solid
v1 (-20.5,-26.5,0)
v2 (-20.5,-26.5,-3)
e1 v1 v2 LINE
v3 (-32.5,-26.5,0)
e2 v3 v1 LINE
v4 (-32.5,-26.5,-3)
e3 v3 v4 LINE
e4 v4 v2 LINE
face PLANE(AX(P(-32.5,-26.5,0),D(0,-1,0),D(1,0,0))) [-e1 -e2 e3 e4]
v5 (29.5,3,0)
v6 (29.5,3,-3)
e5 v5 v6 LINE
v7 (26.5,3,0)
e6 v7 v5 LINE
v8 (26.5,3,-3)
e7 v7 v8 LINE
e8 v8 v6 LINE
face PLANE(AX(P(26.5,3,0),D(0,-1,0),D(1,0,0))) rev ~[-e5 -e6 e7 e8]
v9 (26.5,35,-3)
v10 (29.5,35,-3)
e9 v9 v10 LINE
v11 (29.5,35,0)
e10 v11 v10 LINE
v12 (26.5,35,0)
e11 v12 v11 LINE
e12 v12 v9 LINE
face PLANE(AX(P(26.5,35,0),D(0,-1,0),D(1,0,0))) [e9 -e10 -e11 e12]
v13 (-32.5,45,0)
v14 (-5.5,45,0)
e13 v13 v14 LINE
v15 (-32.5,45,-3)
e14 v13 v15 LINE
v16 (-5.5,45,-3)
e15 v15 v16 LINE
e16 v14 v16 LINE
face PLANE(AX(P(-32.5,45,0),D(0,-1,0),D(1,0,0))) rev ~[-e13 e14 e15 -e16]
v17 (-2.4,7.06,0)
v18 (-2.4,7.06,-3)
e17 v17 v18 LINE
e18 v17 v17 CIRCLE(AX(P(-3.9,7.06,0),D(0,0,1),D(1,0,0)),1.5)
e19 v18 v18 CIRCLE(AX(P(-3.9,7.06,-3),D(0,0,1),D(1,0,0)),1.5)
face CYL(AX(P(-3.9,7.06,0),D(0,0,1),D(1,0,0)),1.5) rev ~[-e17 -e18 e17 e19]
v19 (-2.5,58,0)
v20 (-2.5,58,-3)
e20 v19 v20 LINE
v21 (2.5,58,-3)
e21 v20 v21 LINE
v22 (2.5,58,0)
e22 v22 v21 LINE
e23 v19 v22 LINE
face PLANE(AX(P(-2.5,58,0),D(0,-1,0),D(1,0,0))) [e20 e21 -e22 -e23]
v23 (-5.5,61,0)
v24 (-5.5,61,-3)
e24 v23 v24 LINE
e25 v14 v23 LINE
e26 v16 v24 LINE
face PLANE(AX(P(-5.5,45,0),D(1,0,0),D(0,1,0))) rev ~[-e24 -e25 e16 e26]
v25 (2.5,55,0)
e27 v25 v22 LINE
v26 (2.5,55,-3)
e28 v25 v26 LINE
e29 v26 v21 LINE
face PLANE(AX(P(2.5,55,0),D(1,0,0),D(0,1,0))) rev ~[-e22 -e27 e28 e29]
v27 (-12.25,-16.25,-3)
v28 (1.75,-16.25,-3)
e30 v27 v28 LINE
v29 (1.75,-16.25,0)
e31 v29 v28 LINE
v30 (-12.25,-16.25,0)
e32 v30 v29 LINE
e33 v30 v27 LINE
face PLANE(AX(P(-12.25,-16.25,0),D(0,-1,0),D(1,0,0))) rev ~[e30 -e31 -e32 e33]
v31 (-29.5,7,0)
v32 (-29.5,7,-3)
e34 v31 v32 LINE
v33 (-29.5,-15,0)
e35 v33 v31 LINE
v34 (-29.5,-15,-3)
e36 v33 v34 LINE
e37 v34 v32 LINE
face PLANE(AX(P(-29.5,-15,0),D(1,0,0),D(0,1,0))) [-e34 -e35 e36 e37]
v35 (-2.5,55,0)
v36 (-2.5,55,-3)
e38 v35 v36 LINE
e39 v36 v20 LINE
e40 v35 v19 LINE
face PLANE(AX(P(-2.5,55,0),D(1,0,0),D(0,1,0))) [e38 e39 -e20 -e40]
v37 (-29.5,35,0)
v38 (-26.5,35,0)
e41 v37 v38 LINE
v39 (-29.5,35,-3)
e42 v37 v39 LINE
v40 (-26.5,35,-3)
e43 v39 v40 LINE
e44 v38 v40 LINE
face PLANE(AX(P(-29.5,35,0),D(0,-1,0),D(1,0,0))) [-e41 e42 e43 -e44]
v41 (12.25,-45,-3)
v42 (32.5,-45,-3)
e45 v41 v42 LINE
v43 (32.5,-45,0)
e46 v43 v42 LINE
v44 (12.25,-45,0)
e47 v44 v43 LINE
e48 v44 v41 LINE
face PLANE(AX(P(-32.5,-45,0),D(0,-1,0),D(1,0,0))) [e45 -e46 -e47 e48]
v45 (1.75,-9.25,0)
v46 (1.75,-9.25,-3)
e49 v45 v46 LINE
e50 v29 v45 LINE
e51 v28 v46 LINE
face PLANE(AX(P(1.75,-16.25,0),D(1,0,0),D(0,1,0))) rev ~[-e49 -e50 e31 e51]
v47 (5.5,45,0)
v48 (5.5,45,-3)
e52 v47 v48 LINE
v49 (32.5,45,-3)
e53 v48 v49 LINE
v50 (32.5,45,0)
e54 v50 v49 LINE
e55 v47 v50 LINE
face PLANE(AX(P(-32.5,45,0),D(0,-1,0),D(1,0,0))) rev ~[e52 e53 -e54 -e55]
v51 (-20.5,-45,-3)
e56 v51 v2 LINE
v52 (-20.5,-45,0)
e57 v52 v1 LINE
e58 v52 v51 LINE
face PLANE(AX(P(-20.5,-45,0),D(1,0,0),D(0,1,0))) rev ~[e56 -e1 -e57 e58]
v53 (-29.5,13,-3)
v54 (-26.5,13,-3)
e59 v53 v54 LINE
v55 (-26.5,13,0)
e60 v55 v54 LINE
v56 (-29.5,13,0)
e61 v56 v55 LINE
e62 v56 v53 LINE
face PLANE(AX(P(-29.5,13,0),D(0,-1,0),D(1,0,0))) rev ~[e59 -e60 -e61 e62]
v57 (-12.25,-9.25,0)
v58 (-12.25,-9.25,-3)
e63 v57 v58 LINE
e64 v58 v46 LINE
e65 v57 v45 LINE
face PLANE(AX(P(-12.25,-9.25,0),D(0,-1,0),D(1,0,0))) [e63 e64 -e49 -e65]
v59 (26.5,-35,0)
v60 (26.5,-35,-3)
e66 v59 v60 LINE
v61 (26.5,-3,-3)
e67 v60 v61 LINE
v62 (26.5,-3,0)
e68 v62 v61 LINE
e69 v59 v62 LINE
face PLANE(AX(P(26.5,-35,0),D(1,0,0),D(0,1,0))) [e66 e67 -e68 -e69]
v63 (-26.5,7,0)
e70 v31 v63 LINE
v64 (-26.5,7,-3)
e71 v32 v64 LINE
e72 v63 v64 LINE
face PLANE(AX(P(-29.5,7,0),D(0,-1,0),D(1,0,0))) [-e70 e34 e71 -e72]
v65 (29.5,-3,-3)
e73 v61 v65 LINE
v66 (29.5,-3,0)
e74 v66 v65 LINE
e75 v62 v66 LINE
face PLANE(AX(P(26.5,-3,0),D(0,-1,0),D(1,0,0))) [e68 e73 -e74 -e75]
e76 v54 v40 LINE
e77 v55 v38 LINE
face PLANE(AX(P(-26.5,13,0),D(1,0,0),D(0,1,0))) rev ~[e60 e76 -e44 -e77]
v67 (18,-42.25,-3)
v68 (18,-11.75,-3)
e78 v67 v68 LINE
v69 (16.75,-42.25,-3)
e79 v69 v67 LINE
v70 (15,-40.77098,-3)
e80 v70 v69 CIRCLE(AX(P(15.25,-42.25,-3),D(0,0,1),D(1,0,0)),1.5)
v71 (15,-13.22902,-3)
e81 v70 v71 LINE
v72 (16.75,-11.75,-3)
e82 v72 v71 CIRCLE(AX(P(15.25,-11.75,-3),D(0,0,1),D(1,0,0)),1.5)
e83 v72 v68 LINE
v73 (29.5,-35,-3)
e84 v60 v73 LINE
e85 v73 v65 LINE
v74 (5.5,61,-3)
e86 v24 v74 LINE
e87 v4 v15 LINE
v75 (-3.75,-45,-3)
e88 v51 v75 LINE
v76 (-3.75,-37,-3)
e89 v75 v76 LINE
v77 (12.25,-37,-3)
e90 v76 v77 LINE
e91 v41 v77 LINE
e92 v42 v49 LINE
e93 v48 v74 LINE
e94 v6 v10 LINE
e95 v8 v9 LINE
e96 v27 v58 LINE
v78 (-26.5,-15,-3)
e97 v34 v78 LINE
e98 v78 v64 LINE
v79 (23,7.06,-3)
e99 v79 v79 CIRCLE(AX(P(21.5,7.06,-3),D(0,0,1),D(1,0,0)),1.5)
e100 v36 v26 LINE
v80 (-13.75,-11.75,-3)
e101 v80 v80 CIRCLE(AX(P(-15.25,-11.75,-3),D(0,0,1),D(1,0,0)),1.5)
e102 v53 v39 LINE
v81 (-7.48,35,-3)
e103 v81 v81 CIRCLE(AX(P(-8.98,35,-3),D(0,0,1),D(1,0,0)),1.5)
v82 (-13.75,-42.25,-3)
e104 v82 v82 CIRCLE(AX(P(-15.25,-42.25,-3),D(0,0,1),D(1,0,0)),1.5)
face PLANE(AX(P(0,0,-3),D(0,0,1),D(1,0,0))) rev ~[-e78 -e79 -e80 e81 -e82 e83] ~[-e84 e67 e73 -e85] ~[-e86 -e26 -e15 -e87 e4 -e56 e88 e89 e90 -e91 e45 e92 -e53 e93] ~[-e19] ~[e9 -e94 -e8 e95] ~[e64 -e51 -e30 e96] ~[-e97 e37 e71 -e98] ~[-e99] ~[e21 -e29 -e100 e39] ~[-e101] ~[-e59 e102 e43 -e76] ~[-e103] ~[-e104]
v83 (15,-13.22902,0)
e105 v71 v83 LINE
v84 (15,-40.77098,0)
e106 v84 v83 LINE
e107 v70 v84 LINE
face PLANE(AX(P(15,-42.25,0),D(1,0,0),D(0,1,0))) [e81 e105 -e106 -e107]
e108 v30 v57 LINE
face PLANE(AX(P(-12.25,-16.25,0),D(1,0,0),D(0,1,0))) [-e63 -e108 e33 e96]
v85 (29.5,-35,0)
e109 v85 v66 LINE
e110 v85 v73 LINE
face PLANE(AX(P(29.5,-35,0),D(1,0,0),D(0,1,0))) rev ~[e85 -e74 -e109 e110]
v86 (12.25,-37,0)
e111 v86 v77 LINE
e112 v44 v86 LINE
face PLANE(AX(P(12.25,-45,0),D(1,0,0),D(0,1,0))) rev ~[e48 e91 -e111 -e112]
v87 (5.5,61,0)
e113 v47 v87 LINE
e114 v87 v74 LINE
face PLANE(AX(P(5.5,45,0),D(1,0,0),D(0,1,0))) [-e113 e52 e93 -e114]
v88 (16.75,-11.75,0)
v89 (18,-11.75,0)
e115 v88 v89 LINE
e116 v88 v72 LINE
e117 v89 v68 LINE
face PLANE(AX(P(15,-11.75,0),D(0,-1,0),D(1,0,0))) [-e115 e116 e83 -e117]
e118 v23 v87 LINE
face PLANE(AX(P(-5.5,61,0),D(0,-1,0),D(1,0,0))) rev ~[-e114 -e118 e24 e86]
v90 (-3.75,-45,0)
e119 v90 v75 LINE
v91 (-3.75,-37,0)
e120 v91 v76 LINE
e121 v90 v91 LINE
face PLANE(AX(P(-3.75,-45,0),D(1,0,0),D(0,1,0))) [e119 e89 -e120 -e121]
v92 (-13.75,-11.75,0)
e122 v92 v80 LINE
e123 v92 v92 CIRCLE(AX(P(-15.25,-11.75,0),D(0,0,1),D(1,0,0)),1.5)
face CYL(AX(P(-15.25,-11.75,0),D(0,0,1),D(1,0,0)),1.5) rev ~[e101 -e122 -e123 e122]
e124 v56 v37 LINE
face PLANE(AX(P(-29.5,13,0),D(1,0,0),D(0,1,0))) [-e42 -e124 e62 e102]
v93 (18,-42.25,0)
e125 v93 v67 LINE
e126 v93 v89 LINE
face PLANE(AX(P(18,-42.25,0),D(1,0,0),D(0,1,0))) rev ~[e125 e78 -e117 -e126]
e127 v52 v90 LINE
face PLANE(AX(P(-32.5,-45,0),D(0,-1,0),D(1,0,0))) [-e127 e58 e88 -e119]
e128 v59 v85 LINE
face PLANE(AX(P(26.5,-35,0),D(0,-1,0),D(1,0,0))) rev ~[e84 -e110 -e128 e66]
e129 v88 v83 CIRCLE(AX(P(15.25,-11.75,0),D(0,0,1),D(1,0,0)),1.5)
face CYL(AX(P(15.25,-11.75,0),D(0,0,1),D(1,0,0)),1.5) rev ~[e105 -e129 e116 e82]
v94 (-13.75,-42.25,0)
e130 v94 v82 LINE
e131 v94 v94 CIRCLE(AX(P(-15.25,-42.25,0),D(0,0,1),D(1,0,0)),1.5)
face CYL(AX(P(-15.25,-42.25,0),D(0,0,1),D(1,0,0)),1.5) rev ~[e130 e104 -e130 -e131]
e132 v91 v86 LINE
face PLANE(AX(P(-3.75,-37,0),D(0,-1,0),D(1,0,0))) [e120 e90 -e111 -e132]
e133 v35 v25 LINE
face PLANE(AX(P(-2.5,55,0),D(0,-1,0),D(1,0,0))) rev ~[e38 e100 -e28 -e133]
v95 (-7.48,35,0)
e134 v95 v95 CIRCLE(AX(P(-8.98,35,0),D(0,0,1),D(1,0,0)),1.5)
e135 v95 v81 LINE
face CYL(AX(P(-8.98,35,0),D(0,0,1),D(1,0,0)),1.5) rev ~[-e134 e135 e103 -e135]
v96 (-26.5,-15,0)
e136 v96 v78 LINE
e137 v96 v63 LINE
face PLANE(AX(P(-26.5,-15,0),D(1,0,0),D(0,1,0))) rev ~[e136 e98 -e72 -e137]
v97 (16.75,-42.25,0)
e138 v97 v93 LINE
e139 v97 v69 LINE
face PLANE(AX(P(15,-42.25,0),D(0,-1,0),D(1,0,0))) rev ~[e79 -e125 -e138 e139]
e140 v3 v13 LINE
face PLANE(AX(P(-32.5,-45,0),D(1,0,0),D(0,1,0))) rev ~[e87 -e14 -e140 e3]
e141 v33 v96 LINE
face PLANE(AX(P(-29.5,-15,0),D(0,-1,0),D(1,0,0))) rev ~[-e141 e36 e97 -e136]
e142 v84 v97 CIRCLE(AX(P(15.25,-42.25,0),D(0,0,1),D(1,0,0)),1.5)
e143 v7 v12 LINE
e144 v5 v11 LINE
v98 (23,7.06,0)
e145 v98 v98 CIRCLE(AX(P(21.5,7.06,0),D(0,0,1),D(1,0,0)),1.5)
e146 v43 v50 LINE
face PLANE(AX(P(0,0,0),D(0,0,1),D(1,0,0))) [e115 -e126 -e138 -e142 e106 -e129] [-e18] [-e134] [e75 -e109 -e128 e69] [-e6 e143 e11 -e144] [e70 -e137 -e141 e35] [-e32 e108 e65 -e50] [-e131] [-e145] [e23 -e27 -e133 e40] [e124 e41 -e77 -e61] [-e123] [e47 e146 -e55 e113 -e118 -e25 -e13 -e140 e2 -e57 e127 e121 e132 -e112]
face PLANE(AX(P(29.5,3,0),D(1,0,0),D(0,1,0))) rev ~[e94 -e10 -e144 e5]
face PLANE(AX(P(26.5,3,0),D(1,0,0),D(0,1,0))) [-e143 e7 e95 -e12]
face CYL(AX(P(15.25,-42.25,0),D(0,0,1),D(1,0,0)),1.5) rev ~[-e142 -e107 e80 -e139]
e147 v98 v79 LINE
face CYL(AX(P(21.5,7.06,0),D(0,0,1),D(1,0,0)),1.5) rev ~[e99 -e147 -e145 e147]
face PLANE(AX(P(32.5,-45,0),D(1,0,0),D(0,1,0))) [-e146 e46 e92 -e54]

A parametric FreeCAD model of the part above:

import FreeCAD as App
import Part
import Sketcher

V = App.Vector
Q = App.Units.Quantity


def add_polygon(sketch, points):
    """Adds a closed chain of lines whose ends are joined by coincident constraints."""
    first, n = sketch.GeometryCount, len(points)
    for a, b in zip(points, points[1:] + points[:1]):
        sketch.addGeometry(Part.LineSegment(App.Vector(*a, 0), App.Vector(*b, 0)), False)
    for i in range(n):
        sketch.addConstraint(Sketcher.Constraint("Coincident", first + i, 2, first + (i + 1) % n, 1))

doc = App.newDocument("Part")
params = doc.addObject("Spreadsheet::Sheet", "Params")
for row, (alias, value) in enumerate([
    ("sketch1_width", "65 mm"),
    ("sketch1_height", "90 mm"),
    ("pad1_length", "3 mm"),
    ("sketch2_diameter", "3 mm"),
    ("pocket1_length", "3 mm"),
    ("sketch3_diameter", "3 mm"),
    ("sketch4_width", "3 mm"),
    ("sketch4_height", "32 mm"),
    ("sketch5_width", "3 mm"),
    ("sketch5_height", "22 mm"),
    ("sketch6_width", "3 mm"),
    ("sketch6_width2", "14 mm"),
    ("sketch6_width3", "16 mm"),
    ("sketch6_height", "7 mm"),
    ("sketch6_height2", "8 mm"),
    ("sketch7_width", "12 mm"),
    ("sketch7_height", "18.5 mm"),
    ("sketch8_width", "11 mm"),
    ("sketch8_width2", "5 mm"),
    ("sketch8_height", "16 mm"),
    ("sketch8_height2", "3 mm"),
    ("pad2_length", "3 mm"),
], start=1):
    params.set(f"A{row}", alias)
    params.set(f"B{row}", "=" + value)
    params.setAlias(f"B{row}", alias)

body = doc.addObject("PartDesign::Body", "Body")

sketch1 = doc.addObject("Sketcher::SketchObject", "Sketch")
body.addObject(sketch1)
sketch1.AttachmentSupport = (doc.XY_Plane, [""])
sketch1.MapMode = "FlatFace"
add_polygon(sketch1, [(-32.5, 45), (-32.5, -45), (32.5, -45), (32.5, 45)])
sketch1.addConstraint(Sketcher.Constraint("Vertical", 0))
sketch1.addConstraint(Sketcher.Constraint("Horizontal", 1))
sketch1.addConstraint(Sketcher.Constraint("Vertical", 2))
sketch1.addConstraint(Sketcher.Constraint("Horizontal", 3))
sketch1.addConstraint(Sketcher.Constraint("Symmetric", 0, 2, 2, 2, -1, 1))
sketch1.addConstraint(Sketcher.Constraint("DistanceX", 1, 1, 1, 2, Q("65 mm")))
sketch1.addConstraint(Sketcher.Constraint("DistanceY", 0, 2, 0, 1, Q("90 mm")))
sketch1.setExpression("Constraints[9]", "Params.sketch1_width")
sketch1.setExpression("Constraints[10]", "Params.sketch1_height")
pad1 = doc.addObject("PartDesign::Pad", "Pad")
body.addObject(pad1)
pad1.Profile = sketch1
pad1.setExpression("Length", "Params.pad1_length")
pad1.Reversed = True

sketch2 = doc.addObject("Sketcher::SketchObject", "Sketch001")
body.addObject(sketch2)
sketch2.AttachmentSupport = (doc.XY_Plane, [""])
sketch2.MapMode = "FlatFace"
sketch2.addGeometry(Part.Circle(V(-8.98, 35, 0), V(0, 0, 1), 1.5), False)
sketch2.addGeometry(Part.Circle(V(-3.9, 7.06, 0), V(0, 0, 1), 1.5), False)
sketch2.addGeometry(Part.Circle(V(21.5, 7.06, 0), V(0, 0, 1), 1.5), False)
sketch2.addConstraint(Sketcher.Constraint("Equal", 0, 1))
sketch2.addConstraint(Sketcher.Constraint("Equal", 1, 2))
sketch2.addConstraint(Sketcher.Constraint("Horizontal", 1, 3, 2, 3))
sketch2.addConstraint(Sketcher.Constraint("Diameter", 0, Q("3 mm")))
sketch2.addConstraint(Sketcher.Constraint("DistanceY", -1, 1, 0, 3, Q("35 mm")))
sketch2.addConstraint(Sketcher.Constraint("DistanceX", 1, 3, -1, 1, Q("3.9 mm")))
sketch2.addConstraint(Sketcher.Constraint("DistanceX", -1, 1, 2, 3, Q("21.5 mm")))
sketch2.addConstraint(Sketcher.Constraint("DistanceX", 0, 3, -1, 1, Q("8.98 mm")))
sketch2.addConstraint(Sketcher.Constraint("DistanceY", -1, 1, 1, 3, Q("7.06 mm")))
sketch2.setExpression("Constraints[3]", "Params.sketch2_diameter")
pocket1 = doc.addObject("PartDesign::Pocket", "Pocket")
body.addObject(pocket1)
pocket1.Profile = sketch2
pocket1.setExpression("Length", "Params.pocket1_length")

sketch3 = doc.addObject("Sketcher::SketchObject", "Sketch002")
body.addObject(sketch3)
sketch3.AttachmentSupport = (doc.XY_Plane, [""])
sketch3.MapMode = "FlatFace"
sketch3.addGeometry(Part.Circle(V(-15.25, -42.25, 0), V(0, 0, 1), 1.5), False)
sketch3.addGeometry(Part.Circle(V(-15.25, -11.75, 0), V(0, 0, 1), 1.5), False)
sketch3.addGeometry(Part.Circle(V(15.25, -42.25, 0), V(0, 0, 1), 1.5), False)
sketch3.addGeometry(Part.Circle(V(15.25, -11.75, 0), V(0, 0, 1), 1.5), False)
sketch3.addConstraint(Sketcher.Constraint("Equal", 0, 1))
sketch3.addConstraint(Sketcher.Constraint("Equal", 1, 2))
sketch3.addConstraint(Sketcher.Constraint("Equal", 2, 3))
sketch3.addConstraint(Sketcher.Constraint("Symmetric", 0, 3, 2, 3, -2))
sketch3.addConstraint(Sketcher.Constraint("Symmetric", 1, 3, 3, 3, -2))
sketch3.addConstraint(Sketcher.Constraint("Vertical", 0, 3, 1, 3))
sketch3.addConstraint(Sketcher.Constraint("Diameter", 0, Q("3 mm")))
sketch3.addConstraint(Sketcher.Constraint("DistanceY", 0, 3, 1, 3, Q("30.5 mm")))
sketch3.addConstraint(Sketcher.Constraint("DistanceX", 0, 3, 2, 3, Q("30.5 mm")))
sketch3.addConstraint(Sketcher.Constraint("DistanceY", 0, 3, -1, 1, Q("42.25 mm")))
sketch3.setExpression("Constraints[6]", "Params.sketch3_diameter")
pocket2 = doc.addObject("PartDesign::Pocket", "Pocket001")
body.addObject(pocket2)
pocket2.Profile = sketch3
pocket2.Type = "ThroughAll"

sketch4 = doc.addObject("Sketcher::SketchObject", "Sketch003")
body.addObject(sketch4)
sketch4.AttachmentSupport = (doc.XY_Plane, [""])
sketch4.MapMode = "FlatFace"
add_polygon(sketch4, [(26.5, -3), (26.5, -35), (29.5, -35), (29.5, -3)])
add_polygon(sketch4, [(26.5, 35), (26.5, 3), (29.5, 3), (29.5, 35)])
sketch4.addConstraint(Sketcher.Constraint("Vertical", 0))
sketch4.addConstraint(Sketcher.Constraint("Horizontal", 1))
sketch4.addConstraint(Sketcher.Constraint("Vertical", 2))
sketch4.addConstraint(Sketcher.Constraint("Horizontal", 3))
sketch4.addConstraint(Sketcher.Constraint("Vertical", 4))
sketch4.addConstraint(Sketcher.Constraint("Horizontal", 5))
sketch4.addConstraint(Sketcher.Constraint("Vertical", 6))
sketch4.addConstraint(Sketcher.Constraint("Horizontal", 7))
sketch4.addConstraint(Sketcher.Constraint("Symmetric", 3, 2, 4, 2, -1))
sketch4.addConstraint(Sketcher.Constraint("Symmetric", 1, 2, 6, 2, -1))
sketch4.addConstraint(Sketcher.Constraint("DistanceX", 1, 1, 1, 2, Q("3 mm")))
sketch4.addConstraint(Sketcher.Constraint("DistanceY", 0, 2, 0, 1, Q("32 mm")))
sketch4.addConstraint(Sketcher.Constraint("DistanceY", 0, 2, -1, 1, Q("35 mm")))
sketch4.addConstraint(Sketcher.Constraint("DistanceX", -1, 1, 0, 2, Q("26.5 mm")))
sketch4.setExpression("Constraints[18]", "Params.sketch4_width")
sketch4.setExpression("Constraints[19]", "Params.sketch4_height")
pocket3 = doc.addObject("PartDesign::Pocket", "Pocket002")
body.addObject(pocket3)
pocket3.Profile = sketch4
pocket3.Type = "ThroughAll"

sketch5 = doc.addObject("Sketcher::SketchObject", "Sketch004")
body.addObject(sketch5)
sketch5.AttachmentSupport = (doc.XY_Plane, [""])
sketch5.MapMode = "FlatFace"
add_polygon(sketch5, [(-29.5, 7), (-29.5, -15), (-26.5, -15), (-26.5, 7)])
add_polygon(sketch5, [(-29.5, 35), (-29.5, 13), (-26.5, 13), (-26.5, 35)])
sketch5.addConstraint(Sketcher.Constraint("Vertical", 0))
sketch5.addConstraint(Sketcher.Constraint("Horizontal", 1))
sketch5.addConstraint(Sketcher.Constraint("Vertical", 2))
sketch5.addConstraint(Sketcher.Constraint("Horizontal", 3))
sketch5.addConstraint(Sketcher.Constraint("Vertical", 4))
sketch5.addConstraint(Sketcher.Constraint("Horizontal", 5))
sketch5.addConstraint(Sketcher.Constraint("Vertical", 6))
sketch5.addConstraint(Sketcher.Constraint("Horizontal", 7))
sketch5.addConstraint(Sketcher.Constraint("Vertical", 3, 2, 4, 2))
sketch5.addConstraint(Sketcher.Constraint("Vertical", 2, 2, 5, 2))
sketch5.addConstraint(Sketcher.Constraint("Equal", 2, 4))
sketch5.addConstraint(Sketcher.Constraint("DistanceX", 1, 1, 1, 2, Q("3 mm")))
sketch5.addConstraint(Sketcher.Constraint("DistanceY", 0, 2, 0, 1, Q("22 mm")))
sketch5.addConstraint(Sketcher.Constraint("DistanceY", 0, 2, -1, 1, Q("15 mm")))
sketch5.addConstraint(Sketcher.Constraint("DistanceY", -1, 1, 4, 2, Q("13 mm")))
sketch5.addConstraint(Sketcher.Constraint("DistanceX", 0, 2, -1, 1, Q("29.5 mm")))
sketch5.setExpression("Constraints[19]", "Params.sketch5_width")
sketch5.setExpression("Constraints[20]", "Params.sketch5_height")
pocket4 = doc.addObject("PartDesign::Pocket", "Pocket003")
body.addObject(pocket4)
pocket4.Profile = sketch5
pocket4.Type = "ThroughAll"

sketch6 = doc.addObject("Sketcher::SketchObject", "Sketch005")
body.addObject(sketch6)
sketch6.AttachmentSupport = (doc.XY_Plane, [""])
sketch6.MapMode = "FlatFace"
add_polygon(sketch6, [(15, -11.75), (15, -42.25), (18, -42.25), (18, -11.75)])
add_polygon(sketch6, [(-12.25, -9.25), (-12.25, -16.25), (1.75, -16.25), (1.75, -9.25)])
add_polygon(sketch6, [(-3.75, -37), (-3.75, -45), (12.25, -45), (12.25, -37)])
sketch6.addConstraint(Sketcher.Constraint("Vertical", 0))
sketch6.addConstraint(Sketcher.Constraint("Horizontal", 1))
sketch6.addConstraint(Sketcher.Constraint("Vertical", 2))
sketch6.addConstraint(Sketcher.Constraint("Horizontal", 3))
sketch6.addConstraint(Sketcher.Constraint("Vertical", 4))
sketch6.addConstraint(Sketcher.Constraint("Horizontal", 5))
sketch6.addConstraint(Sketcher.Constraint("Vertical", 6))
sketch6.addConstraint(Sketcher.Constraint("Horizontal", 7))
sketch6.addConstraint(Sketcher.Constraint("Vertical", 8))
sketch6.addConstraint(Sketcher.Constraint("Horizontal", 9))
sketch6.addConstraint(Sketcher.Constraint("Vertical", 10))
sketch6.addConstraint(Sketcher.Constraint("Horizontal", 11))
sketch6.addConstraint(Sketcher.Constraint("DistanceX", 1, 1, 1, 2, Q("3 mm")))
sketch6.addConstraint(Sketcher.Constraint("DistanceX", 5, 1, 5, 2, Q("14 mm")))
sketch6.addConstraint(Sketcher.Constraint("DistanceX", 9, 1, 9, 2, Q("16 mm")))
sketch6.addConstraint(Sketcher.Constraint("DistanceY", 4, 2, 4, 1, Q("7 mm")))
sketch6.addConstraint(Sketcher.Constraint("DistanceY", 8, 2, 8, 1, Q("8 mm")))
sketch6.addConstraint(Sketcher.Constraint("DistanceY", 0, 2, 0, 1, Q("30.5 mm")))
sketch6.addConstraint(Sketcher.Constraint("DistanceX", -1, 1, 0, 2, Q("15 mm")))
sketch6.addConstraint(Sketcher.Constraint("DistanceY", 8, 2, -1, 1, Q("45 mm")))
sketch6.addConstraint(Sketcher.Constraint("DistanceY", 0, 2, 4, 2, Q("26 mm")))
sketch6.addConstraint(Sketcher.Constraint("DistanceX", 8, 2, 5, 2, Q("5.5 mm")))
sketch6.addConstraint(Sketcher.Constraint("DistanceY", 0, 2, -1, 1, Q("42.25 mm")))
sketch6.addConstraint(Sketcher.Constraint("DistanceX", 4, 2, -1, 1, Q("12.25 mm")))
sketch6.setExpression("Constraints[24]", "Params.sketch6_width")
sketch6.setExpression("Constraints[25]", "Params.sketch6_width2")
sketch6.setExpression("Constraints[26]", "Params.sketch6_width3")
sketch6.setExpression("Constraints[27]", "Params.sketch6_height")
sketch6.setExpression("Constraints[28]", "Params.sketch6_height2")
pocket5 = doc.addObject("PartDesign::Pocket", "Pocket004")
body.addObject(pocket5)
pocket5.Profile = sketch6
pocket5.Type = "ThroughAll"

sketch7 = doc.addObject("Sketcher::SketchObject", "Sketch006")
body.addObject(sketch7)
sketch7.AttachmentSupport = (doc.XY_Plane, [""])
sketch7.MapMode = "FlatFace"
add_polygon(sketch7, [(-32.5, -26.5), (-32.5, -45), (-20.5, -45), (-20.5, -26.5)])
sketch7.addConstraint(Sketcher.Constraint("Vertical", 0))
sketch7.addConstraint(Sketcher.Constraint("Horizontal", 1))
sketch7.addConstraint(Sketcher.Constraint("Vertical", 2))
sketch7.addConstraint(Sketcher.Constraint("Horizontal", 3))
sketch7.addConstraint(Sketcher.Constraint("DistanceX", 1, 1, 1, 2, Q("12 mm")))
sketch7.addConstraint(Sketcher.Constraint("DistanceY", 0, 2, 0, 1, Q("18.5 mm")))
sketch7.addConstraint(Sketcher.Constraint("DistanceY", 0, 2, -1, 1, Q("45 mm")))
sketch7.addConstraint(Sketcher.Constraint("DistanceX", 0, 2, -1, 1, Q("32.5 mm")))
sketch7.setExpression("Constraints[8]", "Params.sketch7_width")
sketch7.setExpression("Constraints[9]", "Params.sketch7_height")
pocket6 = doc.addObject("PartDesign::Pocket", "Pocket005")
body.addObject(pocket6)
pocket6.Profile = sketch7
pocket6.Type = "ThroughAll"

sketch8 = doc.addObject("Sketcher::SketchObject", "Sketch007")
body.addObject(sketch8)
sketch8.AttachmentSupport = (doc.XY_Plane, [""])
sketch8.MapMode = "FlatFace"
add_polygon(sketch8, [(-5.5, 61), (-5.5, 45), (5.5, 45), (5.5, 61)])
add_polygon(sketch8, [(2.5, 55), (-2.5, 55), (-2.5, 58), (2.5, 58)])
sketch8.addConstraint(Sketcher.Constraint("Vertical", 0))
sketch8.addConstraint(Sketcher.Constraint("Horizontal", 1))
sketch8.addConstraint(Sketcher.Constraint("Vertical", 2))
sketch8.addConstraint(Sketcher.Constraint("Horizontal", 3))
sketch8.addConstraint(Sketcher.Constraint("Horizontal", 4))
sketch8.addConstraint(Sketcher.Constraint("Vertical", 5))
sketch8.addConstraint(Sketcher.Constraint("Horizontal", 6))
sketch8.addConstraint(Sketcher.Constraint("Vertical", 7))
sketch8.addConstraint(Sketcher.Constraint("DistanceX", 1, 1, 1, 2, Q("11 mm")))
sketch8.addConstraint(Sketcher.Constraint("DistanceX", 4, 2, 4, 1, Q("5 mm")))
sketch8.addConstraint(Sketcher.Constraint("DistanceY", 0, 2, 0, 1, Q("16 mm")))
sketch8.addConstraint(Sketcher.Constraint("DistanceY", 5, 1, 5, 2, Q("3 mm")))
sketch8.addConstraint(Sketcher.Constraint("DistanceY", -1, 1, 0, 2, Q("45 mm")))
sketch8.addConstraint(Sketcher.Constraint("DistanceY", -1, 1, 4, 2, Q("55 mm")))
sketch8.addConstraint(Sketcher.Constraint("DistanceX", 3, 2, 4, 2, Q("3 mm")))
sketch8.addConstraint(Sketcher.Constraint("DistanceX", 0, 2, -1, 1, Q("5.5 mm")))
sketch8.setExpression("Constraints[16]", "Params.sketch8_width")
sketch8.setExpression("Constraints[17]", "Params.sketch8_width2")
sketch8.setExpression("Constraints[18]", "Params.sketch8_height")
sketch8.setExpression("Constraints[19]", "Params.sketch8_height2")
pad2 = doc.addObject("PartDesign::Pad", "Pad001")
body.addObject(pad2)
pad2.Profile = sketch8
pad2.setExpression("Length", "Params.pad2_length")
pad2.Reversed = True

doc.recompute()
